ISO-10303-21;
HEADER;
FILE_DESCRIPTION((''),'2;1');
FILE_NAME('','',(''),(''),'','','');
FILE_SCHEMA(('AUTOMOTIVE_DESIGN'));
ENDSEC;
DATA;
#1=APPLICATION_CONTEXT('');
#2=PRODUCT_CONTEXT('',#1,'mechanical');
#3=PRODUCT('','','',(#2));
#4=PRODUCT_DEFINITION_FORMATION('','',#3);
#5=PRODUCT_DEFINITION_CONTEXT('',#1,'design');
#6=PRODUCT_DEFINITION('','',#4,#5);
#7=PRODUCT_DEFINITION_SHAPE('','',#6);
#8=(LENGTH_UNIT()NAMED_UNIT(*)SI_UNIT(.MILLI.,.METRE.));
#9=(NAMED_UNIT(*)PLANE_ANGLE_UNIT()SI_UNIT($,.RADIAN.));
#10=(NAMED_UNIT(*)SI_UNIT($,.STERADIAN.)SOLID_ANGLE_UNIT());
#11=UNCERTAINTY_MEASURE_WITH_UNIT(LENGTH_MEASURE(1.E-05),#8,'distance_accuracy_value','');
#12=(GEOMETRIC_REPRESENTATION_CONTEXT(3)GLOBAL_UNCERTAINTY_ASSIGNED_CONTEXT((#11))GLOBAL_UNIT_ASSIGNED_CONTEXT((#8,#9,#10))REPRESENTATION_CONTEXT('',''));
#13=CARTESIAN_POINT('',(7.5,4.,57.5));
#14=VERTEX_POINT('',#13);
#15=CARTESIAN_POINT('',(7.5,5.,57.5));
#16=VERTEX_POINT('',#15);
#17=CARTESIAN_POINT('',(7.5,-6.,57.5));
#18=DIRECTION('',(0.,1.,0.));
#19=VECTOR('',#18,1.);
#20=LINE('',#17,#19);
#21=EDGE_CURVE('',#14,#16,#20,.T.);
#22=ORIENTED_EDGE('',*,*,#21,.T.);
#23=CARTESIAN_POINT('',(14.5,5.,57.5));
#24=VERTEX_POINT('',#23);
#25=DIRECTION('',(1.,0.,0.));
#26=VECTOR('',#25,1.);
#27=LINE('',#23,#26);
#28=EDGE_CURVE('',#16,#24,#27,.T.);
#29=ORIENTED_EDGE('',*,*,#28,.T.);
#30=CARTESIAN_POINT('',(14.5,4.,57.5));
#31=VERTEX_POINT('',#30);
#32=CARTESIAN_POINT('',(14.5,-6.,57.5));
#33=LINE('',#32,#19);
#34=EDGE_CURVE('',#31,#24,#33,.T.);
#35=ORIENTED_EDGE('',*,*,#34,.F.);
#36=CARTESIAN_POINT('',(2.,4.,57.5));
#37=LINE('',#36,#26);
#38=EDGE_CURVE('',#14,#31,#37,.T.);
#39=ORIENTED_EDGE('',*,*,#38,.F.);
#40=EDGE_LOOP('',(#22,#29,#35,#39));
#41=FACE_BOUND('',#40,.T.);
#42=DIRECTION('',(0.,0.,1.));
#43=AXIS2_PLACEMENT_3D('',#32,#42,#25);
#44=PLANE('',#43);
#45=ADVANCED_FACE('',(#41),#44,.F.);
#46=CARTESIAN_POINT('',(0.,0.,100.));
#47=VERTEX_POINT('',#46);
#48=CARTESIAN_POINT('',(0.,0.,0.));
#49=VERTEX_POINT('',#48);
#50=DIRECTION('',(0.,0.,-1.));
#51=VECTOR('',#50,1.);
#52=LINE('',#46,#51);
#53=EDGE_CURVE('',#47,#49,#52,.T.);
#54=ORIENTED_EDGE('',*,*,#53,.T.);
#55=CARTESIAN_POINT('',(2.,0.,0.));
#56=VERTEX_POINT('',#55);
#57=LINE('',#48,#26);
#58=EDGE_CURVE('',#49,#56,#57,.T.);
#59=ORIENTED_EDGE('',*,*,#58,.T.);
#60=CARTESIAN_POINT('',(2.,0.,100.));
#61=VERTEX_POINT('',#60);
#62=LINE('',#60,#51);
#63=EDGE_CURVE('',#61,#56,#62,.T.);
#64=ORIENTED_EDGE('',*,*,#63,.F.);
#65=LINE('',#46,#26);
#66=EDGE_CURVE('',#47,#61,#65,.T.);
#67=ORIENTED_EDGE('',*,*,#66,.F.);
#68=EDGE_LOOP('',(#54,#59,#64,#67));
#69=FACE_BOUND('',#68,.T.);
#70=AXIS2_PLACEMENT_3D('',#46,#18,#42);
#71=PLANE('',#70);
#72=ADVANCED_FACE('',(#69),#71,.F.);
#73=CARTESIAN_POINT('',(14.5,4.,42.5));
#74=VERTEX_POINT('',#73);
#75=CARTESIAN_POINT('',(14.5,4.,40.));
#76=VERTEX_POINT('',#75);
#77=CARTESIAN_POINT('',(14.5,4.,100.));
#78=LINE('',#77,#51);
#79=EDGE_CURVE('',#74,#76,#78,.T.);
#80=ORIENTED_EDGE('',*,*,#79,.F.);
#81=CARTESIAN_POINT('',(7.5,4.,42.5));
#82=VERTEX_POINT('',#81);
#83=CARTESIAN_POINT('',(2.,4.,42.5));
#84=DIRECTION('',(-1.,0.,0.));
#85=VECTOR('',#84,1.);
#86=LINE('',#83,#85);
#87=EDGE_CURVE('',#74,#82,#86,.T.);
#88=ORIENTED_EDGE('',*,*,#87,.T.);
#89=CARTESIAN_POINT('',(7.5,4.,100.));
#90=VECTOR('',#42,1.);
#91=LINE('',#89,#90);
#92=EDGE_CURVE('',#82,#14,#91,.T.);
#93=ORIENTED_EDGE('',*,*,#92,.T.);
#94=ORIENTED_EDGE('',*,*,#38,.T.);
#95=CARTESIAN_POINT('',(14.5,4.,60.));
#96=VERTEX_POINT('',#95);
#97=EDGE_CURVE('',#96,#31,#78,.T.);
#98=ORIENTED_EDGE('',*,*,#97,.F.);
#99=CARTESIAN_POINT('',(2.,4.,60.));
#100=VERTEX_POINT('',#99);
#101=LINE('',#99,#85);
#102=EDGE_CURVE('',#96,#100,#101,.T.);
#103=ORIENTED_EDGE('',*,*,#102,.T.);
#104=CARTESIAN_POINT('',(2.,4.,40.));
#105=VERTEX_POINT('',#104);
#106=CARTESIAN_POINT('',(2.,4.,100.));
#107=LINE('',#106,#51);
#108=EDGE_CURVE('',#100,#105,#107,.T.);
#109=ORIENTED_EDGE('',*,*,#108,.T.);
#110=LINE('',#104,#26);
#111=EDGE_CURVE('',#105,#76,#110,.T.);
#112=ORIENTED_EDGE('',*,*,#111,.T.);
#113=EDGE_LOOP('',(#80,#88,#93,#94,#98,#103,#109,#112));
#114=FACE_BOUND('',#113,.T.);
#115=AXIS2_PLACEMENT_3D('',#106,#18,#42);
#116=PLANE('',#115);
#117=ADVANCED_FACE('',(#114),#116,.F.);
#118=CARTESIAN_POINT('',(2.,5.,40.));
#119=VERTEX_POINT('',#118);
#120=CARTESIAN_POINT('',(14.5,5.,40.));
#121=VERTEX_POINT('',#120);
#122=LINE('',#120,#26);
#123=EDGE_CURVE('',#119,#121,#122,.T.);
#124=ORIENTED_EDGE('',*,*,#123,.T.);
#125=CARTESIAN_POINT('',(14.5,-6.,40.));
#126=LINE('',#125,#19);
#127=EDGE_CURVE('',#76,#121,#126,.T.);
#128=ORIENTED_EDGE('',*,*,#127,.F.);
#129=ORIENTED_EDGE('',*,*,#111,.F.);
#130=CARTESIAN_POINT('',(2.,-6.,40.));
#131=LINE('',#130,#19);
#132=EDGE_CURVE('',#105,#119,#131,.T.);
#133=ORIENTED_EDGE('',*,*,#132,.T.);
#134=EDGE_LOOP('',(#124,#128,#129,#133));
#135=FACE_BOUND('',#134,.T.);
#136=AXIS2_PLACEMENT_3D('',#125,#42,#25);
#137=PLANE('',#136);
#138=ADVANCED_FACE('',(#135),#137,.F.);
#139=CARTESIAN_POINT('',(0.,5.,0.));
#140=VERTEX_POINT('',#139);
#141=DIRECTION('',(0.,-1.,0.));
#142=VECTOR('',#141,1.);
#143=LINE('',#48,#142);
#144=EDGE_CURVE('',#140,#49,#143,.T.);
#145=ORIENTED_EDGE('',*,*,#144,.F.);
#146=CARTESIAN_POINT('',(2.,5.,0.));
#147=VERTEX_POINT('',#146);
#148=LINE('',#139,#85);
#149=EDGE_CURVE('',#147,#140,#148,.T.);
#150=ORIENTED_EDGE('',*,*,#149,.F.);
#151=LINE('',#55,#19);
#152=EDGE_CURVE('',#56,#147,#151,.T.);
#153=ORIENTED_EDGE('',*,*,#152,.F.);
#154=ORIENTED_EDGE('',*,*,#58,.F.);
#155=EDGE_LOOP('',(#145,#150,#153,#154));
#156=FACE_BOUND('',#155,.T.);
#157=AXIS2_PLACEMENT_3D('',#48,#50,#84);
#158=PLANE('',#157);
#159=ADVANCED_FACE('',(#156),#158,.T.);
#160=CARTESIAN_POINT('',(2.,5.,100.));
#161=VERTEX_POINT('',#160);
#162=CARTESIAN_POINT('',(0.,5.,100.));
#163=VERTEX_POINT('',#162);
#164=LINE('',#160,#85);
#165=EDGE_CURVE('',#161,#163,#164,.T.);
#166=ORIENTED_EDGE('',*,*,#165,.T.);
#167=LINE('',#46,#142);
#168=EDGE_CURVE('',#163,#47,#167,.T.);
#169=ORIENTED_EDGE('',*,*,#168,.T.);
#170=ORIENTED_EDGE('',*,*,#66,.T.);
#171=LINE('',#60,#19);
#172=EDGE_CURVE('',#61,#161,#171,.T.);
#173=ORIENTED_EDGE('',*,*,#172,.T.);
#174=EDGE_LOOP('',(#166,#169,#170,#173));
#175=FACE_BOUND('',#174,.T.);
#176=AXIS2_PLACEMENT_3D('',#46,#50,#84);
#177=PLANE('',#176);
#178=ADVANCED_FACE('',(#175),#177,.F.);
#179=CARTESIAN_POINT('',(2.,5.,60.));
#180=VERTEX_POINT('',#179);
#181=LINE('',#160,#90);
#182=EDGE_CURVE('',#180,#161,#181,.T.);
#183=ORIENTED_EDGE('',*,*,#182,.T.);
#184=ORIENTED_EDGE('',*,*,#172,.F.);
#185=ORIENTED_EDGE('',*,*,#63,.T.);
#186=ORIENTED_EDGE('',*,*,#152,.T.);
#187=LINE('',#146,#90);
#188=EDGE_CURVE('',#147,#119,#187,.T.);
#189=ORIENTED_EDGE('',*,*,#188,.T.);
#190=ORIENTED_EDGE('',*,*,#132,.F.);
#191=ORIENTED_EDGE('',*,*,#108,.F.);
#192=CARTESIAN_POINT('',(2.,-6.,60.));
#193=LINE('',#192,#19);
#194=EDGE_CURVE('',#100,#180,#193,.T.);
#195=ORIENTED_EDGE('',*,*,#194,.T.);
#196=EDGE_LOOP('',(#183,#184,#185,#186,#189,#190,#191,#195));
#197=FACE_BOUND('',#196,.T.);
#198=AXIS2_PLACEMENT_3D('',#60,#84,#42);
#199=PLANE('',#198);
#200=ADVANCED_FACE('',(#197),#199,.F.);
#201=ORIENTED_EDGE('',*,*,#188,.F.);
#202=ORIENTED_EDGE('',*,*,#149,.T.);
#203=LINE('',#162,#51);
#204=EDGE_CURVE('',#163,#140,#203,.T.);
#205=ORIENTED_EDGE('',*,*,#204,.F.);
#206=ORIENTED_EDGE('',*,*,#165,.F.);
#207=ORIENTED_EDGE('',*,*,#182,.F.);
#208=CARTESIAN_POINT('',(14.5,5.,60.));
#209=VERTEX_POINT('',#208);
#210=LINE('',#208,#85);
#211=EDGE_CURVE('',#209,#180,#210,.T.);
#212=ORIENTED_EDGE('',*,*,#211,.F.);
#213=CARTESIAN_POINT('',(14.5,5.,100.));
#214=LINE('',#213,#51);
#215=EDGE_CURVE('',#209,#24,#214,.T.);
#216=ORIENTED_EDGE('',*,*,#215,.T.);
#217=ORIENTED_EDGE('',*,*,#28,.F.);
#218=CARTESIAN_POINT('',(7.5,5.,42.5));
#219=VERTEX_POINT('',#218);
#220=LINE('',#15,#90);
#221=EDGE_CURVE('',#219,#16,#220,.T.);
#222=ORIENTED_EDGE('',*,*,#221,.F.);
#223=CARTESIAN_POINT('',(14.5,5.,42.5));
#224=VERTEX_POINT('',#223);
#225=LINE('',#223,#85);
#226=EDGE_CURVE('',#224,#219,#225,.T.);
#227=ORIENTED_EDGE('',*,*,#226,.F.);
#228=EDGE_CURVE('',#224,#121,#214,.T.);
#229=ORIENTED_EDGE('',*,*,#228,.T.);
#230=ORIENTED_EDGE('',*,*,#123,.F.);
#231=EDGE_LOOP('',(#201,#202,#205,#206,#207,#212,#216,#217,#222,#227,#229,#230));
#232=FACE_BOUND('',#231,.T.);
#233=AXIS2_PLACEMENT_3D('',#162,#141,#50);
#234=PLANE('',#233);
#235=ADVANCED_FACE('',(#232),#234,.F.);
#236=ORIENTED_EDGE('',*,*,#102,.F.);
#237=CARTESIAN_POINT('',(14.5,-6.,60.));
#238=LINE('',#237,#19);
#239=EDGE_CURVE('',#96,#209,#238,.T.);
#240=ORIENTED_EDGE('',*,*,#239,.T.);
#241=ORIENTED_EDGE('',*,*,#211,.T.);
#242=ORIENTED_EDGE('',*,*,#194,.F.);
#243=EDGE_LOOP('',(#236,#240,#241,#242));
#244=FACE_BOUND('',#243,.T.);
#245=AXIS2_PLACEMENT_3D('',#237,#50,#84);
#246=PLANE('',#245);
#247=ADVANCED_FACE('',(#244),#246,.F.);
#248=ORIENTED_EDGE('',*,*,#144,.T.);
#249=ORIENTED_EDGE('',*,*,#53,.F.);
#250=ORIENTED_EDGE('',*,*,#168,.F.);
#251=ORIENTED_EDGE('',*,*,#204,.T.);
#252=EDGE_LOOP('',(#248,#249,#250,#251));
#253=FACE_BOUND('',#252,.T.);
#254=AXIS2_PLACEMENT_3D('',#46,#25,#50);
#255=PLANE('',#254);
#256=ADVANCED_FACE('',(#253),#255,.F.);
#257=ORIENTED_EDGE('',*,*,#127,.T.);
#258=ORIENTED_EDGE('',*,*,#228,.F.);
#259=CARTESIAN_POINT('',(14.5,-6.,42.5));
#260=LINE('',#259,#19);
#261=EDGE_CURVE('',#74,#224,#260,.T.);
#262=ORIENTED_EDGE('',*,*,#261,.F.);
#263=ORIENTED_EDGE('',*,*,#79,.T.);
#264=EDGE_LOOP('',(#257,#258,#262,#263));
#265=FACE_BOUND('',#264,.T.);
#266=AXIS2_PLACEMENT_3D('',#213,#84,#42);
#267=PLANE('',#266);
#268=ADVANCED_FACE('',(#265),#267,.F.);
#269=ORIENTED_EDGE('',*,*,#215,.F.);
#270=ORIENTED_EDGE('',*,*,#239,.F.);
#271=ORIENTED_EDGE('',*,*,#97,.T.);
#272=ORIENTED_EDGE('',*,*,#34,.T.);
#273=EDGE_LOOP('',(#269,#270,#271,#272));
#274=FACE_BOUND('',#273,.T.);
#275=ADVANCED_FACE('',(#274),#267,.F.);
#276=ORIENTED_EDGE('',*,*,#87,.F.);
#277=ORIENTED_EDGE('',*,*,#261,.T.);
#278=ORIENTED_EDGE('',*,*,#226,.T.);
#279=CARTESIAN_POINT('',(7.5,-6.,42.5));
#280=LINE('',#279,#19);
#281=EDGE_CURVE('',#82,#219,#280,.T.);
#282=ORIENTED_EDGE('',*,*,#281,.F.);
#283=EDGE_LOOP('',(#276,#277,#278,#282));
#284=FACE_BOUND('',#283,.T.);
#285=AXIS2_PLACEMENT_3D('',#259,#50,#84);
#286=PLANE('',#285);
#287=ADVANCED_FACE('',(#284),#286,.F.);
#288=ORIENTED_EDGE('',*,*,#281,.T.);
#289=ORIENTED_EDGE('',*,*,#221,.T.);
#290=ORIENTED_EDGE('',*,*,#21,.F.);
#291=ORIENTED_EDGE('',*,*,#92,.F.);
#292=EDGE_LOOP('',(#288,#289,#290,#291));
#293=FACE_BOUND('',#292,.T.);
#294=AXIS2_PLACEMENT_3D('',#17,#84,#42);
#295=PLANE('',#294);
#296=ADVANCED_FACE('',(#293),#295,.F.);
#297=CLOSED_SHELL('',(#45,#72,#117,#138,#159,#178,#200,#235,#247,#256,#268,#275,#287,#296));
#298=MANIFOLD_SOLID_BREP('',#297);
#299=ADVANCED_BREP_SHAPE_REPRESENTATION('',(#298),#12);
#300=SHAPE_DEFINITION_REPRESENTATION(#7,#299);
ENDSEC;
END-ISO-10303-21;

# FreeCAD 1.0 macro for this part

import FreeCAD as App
import Part
import Sketcher
Q = App.Units.Quantity

doc = App.newDocument("Part")
body = doc.addObject("PartDesign::Body", "Body")

sketch1 = doc.addObject("Sketcher::SketchObject", "Sketch")
body.addObject(sketch1)
sketch1.AttachmentSupport = (doc.XY_Plane, [""])
sketch1.MapMode = "FlatFace"
sketch1.addGeometry([
    Part.LineSegment(App.Vector(0, 0, 0), App.Vector(2, 0, 0)),
    Part.LineSegment(App.Vector(2, 0, 0), App.Vector(2, 4, 0)),
    Part.LineSegment(App.Vector(2, 4, 0), App.Vector(14.5, 4, 0)),
    Part.LineSegment(App.Vector(14.5, 4, 0), App.Vector(14.5, 5, 0)),
    Part.LineSegment(App.Vector(14.5, 5, 0), App.Vector(0, 5, 0)),
    Part.LineSegment(App.Vector(0, 5, 0), App.Vector(0, 0, 0)),
], False)
sketch1.addConstraint([
    Sketcher.Constraint("Coincident", 0, 2, 1, 1),
    Sketcher.Constraint("Coincident", 1, 2, 2, 1),
    Sketcher.Constraint("Coincident", 2, 2, 3, 1),
    Sketcher.Constraint("Coincident", 3, 2, 4, 1),
    Sketcher.Constraint("Coincident", 4, 2, 5, 1),
    Sketcher.Constraint("Coincident", 5, 2, 0, 1),
    Sketcher.Constraint("Horizontal", 0),
    Sketcher.Constraint("Vertical", 1),
    Sketcher.Constraint("Horizontal", 2),
    Sketcher.Constraint("Vertical", 3),
    Sketcher.Constraint("Horizontal", 4),
    Sketcher.Constraint("Vertical", 5),
    Sketcher.Constraint("Coincident", 5, 2, -1, 1),
    Sketcher.Constraint("DistanceX", 0, 1, 0, 2, Q("2 mm")),
    Sketcher.Constraint("DistanceY", 1, 1, 1, 2, Q("4 mm")),
    Sketcher.Constraint("DistanceY", 3, 1, 3, 2, Q("1 mm")),
    Sketcher.Constraint("DistanceX", 2, 1, 2, 2, Q("12.5 mm")),
])
pad1 = doc.addObject("PartDesign::Pad", "Pad")
body.addObject(pad1)
pad1.Profile = sketch1
pad1.Length = 100

sketch2 = doc.addObject("Sketcher::SketchObject", "Sketch001")
body.addObject(sketch2)
sketch2.AttachmentSupport = (doc.XZ_Plane, [""])
sketch2.MapMode = "FlatFace"
sketch2.AttachmentOffset = App.Placement(App.Vector(0, 0, -5), App.Rotation())
sketch2.addGeometry([
    Part.LineSegment(App.Vector(7.5, 42.5, 0), App.Vector(7.5, 57.5, 0)),
    Part.LineSegment(App.Vector(7.5, 57.5, 0), App.Vector(14.5, 57.5, 0)),
    Part.LineSegment(App.Vector(14.5, 57.5, 0), App.Vector(14.5, 42.5, 0)),
    Part.LineSegment(App.Vector(14.5, 42.5, 0), App.Vector(7.5, 42.5, 0)),
    Part.LineSegment(App.Vector(2, 0, 0), App.Vector(2, 40, 0)),
    Part.LineSegment(App.Vector(2, 40, 0), App.Vector(14.5, 40, 0)),
    Part.LineSegment(App.Vector(14.5, 40, 0), App.Vector(14.5, 0, 0)),
    Part.LineSegment(App.Vector(14.5, 0, 0), App.Vector(2, 0, 0)),
    Part.LineSegment(App.Vector(2, 60, 0), App.Vector(2, 100, 0)),
    Part.LineSegment(App.Vector(2, 100, 0), App.Vector(14.5, 100, 0)),
    Part.LineSegment(App.Vector(14.5, 100, 0), App.Vector(14.5, 60, 0)),
    Part.LineSegment(App.Vector(14.5, 60, 0), App.Vector(2, 60, 0)),
], False)
sketch2.addConstraint([
    Sketcher.Constraint("Coincident", 0, 2, 1, 1),
    Sketcher.Constraint("Coincident", 1, 2, 2, 1),
    Sketcher.Constraint("Coincident", 2, 2, 3, 1),
    Sketcher.Constraint("Coincident", 3, 2, 0, 1),
    Sketcher.Constraint("Coincident", 4, 2, 5, 1),
    Sketcher.Constraint("Coincident", 5, 2, 6, 1),
    Sketcher.Constraint("Coincident", 6, 2, 7, 1),
    Sketcher.Constraint("Coincident", 7, 2, 4, 1),
    Sketcher.Constraint("Coincident", 8, 2, 9, 1),
    Sketcher.Constraint("Coincident", 9, 2, 10, 1),
    Sketcher.Constraint("Coincident", 10, 2, 11, 1),
    Sketcher.Constraint("Coincident", 11, 2, 8, 1),
    Sketcher.Constraint("Vertical", 0),
    Sketcher.Constraint("Horizontal", 1),
    Sketcher.Constraint("Vertical", 2),
    Sketcher.Constraint("Horizontal", 3),
    Sketcher.Constraint("Vertical", 4),
    Sketcher.Constraint("Horizontal", 5),
    Sketcher.Constraint("Vertical", 6),
    Sketcher.Constraint("Horizontal", 7),
    Sketcher.Constraint("Vertical", 8),
    Sketcher.Constraint("Horizontal", 9),
    Sketcher.Constraint("Vertical", 10),
    Sketcher.Constraint("Horizontal", 11),
    Sketcher.Constraint("PointOnObject", 6, 2, -1),
    Sketcher.Constraint("Vertical", 2, 2, 5, 2),
    Sketcher.Constraint("Vertical", 7, 2, 8, 2),
    Sketcher.Constraint("Vertical", 6, 2, 9, 2),
    Sketcher.Constraint("Equal", 6, 8),
    Sketcher.Constraint("DistanceX", 1, 1, 1, 2, Q("7 mm")),
    Sketcher.Constraint("DistanceY", 0, 1, 0, 2, Q("15 mm")),
    Sketcher.Constraint("DistanceY", 4, 1, 4, 2, Q("40 mm")),
    Sketcher.Constraint("DistanceX", 5, 1, 5, 2, Q("12.5 mm")),
    Sketcher.Constraint("DistanceX", -1, 1, 4, 2, Q("2 mm")),
    Sketcher.Constraint("DistanceY", -1, 1, 8, 2, Q("100 mm")),
    Sketcher.Constraint("DistanceY", -1, 1, 0, 2, Q("57.5 mm")),
])
pocket1 = doc.addObject("PartDesign::Pocket", "Pocket")
body.addObject(pocket1)
pocket1.Profile = sketch2
pocket1.Length = 11
pocket1.Reversed = True

doc.recompute()
